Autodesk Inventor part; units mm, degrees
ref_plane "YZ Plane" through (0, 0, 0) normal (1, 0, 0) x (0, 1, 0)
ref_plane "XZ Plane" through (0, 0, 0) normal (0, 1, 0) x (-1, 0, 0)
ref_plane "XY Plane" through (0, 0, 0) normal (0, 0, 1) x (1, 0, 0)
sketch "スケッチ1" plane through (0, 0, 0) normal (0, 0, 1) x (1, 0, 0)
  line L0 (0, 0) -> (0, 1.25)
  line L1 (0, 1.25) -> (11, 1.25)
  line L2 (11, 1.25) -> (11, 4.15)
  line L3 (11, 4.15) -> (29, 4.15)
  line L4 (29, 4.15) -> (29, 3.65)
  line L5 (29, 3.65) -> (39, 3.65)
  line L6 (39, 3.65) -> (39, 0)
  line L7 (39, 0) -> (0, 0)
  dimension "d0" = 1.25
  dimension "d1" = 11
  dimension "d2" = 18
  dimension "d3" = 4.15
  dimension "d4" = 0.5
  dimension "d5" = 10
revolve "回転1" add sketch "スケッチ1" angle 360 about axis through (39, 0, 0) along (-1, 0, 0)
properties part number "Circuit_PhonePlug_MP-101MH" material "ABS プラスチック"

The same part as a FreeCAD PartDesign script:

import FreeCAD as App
import Part
import Sketcher
from FreeCAD import Vector
Q = App.Units.Quantity

doc = App.newDocument("Part")
body = doc.addObject("PartDesign::Body", "Body")

# Sketch on XY plane
sketch1 = body.newObject("Sketcher::SketchObject", "Sketch")
sketch1.AttachmentSupport = (doc.getObject("XY_Plane"), [""])
sketch1.MapMode = "FlatFace"
sketch1.addGeometry(Part.LineSegment(Vector(0, 1.2, 0), Vector(0, 0, 0)), False)
sketch1.addGeometry(Part.LineSegment(Vector(0, 0, 0), Vector(39, 0, 0)), False)
sketch1.addGeometry(Part.LineSegment(Vector(39, 0, 0), Vector(39, 3.6, 0)), False)
sketch1.addGeometry(Part.LineSegment(Vector(39, 3.6, 0), Vector(29, 3.6, 0)), False)
sketch1.addGeometry(Part.LineSegment(Vector(29, 3.6, 0), Vector(29, 4.2, 0)), False)
sketch1.addGeometry(Part.LineSegment(Vector(29, 4.2, 0), Vector(11, 4.2, 0)), False)
sketch1.addGeometry(Part.LineSegment(Vector(11, 4.2, 0), Vector(11, 1.2, 0)), False)
sketch1.addGeometry(Part.LineSegment(Vector(11, 1.2, 0), Vector(0, 1.2, 0)), False)
sketch1.addConstraint(Sketcher.Constraint("Coincident", 0, 2, 1, 1))
sketch1.addConstraint(Sketcher.Constraint("Coincident", 1, 2, 2, 1))
sketch1.addConstraint(Sketcher.Constraint("Coincident", 2, 2, 3, 1))
sketch1.addConstraint(Sketcher.Constraint("Coincident", 3, 2, 4, 1))
sketch1.addConstraint(Sketcher.Constraint("Coincident", 4, 2, 5, 1))
sketch1.addConstraint(Sketcher.Constraint("Coincident", 5, 2, 6, 1))
sketch1.addConstraint(Sketcher.Constraint("Coincident", 6, 2, 7, 1))
sketch1.addConstraint(Sketcher.Constraint("Coincident", 7, 2, 0, 1))
sketch1.addConstraint(Sketcher.Constraint("Vertical", 0))
sketch1.addConstraint(Sketcher.Constraint("Horizontal", 1))
sketch1.addConstraint(Sketcher.Constraint("Vertical", 2))
sketch1.addConstraint(Sketcher.Constraint("Horizontal", 3))
sketch1.addConstraint(Sketcher.Constraint("Vertical", 4))
sketch1.addConstraint(Sketcher.Constraint("Horizontal", 5))
sketch1.addConstraint(Sketcher.Constraint("Vertical", 6))
sketch1.addConstraint(Sketcher.Constraint("Horizontal", 7))
sketch1.addConstraint(Sketcher.Constraint("Coincident", 0, 2, -1, 1))
sketch1.addConstraint(Sketcher.Constraint("DistanceX", 3, 2, 3, 1, Q("10 mm")))
sketch1.addConstraint(Sketcher.Constraint("DistanceX", 5, 2, 5, 1, Q("18 mm")))
sketch1.addConstraint(Sketcher.Constraint("DistanceX", 7, 2, 7, 1, Q("11 mm")))
sketch1.addConstraint(Sketcher.Constraint("DistanceY", 4, 1, 4, 2, Q("0.5 mm")))
sketch1.addConstraint(Sketcher.Constraint("DistanceY", 0, 2, 0, 1, Q("1.25 mm")))
sketch1.addConstraint(Sketcher.Constraint("DistanceY", -1, 1, 4, 2, Q("4.15 mm")))
revolution = body.newObject("PartDesign::Revolution", "Revolution")
revolution.Profile = sketch1
revolution.ReferenceAxis = (sketch1, ["H_Axis"])
revolution.Angle = 360

doc.recompute()
